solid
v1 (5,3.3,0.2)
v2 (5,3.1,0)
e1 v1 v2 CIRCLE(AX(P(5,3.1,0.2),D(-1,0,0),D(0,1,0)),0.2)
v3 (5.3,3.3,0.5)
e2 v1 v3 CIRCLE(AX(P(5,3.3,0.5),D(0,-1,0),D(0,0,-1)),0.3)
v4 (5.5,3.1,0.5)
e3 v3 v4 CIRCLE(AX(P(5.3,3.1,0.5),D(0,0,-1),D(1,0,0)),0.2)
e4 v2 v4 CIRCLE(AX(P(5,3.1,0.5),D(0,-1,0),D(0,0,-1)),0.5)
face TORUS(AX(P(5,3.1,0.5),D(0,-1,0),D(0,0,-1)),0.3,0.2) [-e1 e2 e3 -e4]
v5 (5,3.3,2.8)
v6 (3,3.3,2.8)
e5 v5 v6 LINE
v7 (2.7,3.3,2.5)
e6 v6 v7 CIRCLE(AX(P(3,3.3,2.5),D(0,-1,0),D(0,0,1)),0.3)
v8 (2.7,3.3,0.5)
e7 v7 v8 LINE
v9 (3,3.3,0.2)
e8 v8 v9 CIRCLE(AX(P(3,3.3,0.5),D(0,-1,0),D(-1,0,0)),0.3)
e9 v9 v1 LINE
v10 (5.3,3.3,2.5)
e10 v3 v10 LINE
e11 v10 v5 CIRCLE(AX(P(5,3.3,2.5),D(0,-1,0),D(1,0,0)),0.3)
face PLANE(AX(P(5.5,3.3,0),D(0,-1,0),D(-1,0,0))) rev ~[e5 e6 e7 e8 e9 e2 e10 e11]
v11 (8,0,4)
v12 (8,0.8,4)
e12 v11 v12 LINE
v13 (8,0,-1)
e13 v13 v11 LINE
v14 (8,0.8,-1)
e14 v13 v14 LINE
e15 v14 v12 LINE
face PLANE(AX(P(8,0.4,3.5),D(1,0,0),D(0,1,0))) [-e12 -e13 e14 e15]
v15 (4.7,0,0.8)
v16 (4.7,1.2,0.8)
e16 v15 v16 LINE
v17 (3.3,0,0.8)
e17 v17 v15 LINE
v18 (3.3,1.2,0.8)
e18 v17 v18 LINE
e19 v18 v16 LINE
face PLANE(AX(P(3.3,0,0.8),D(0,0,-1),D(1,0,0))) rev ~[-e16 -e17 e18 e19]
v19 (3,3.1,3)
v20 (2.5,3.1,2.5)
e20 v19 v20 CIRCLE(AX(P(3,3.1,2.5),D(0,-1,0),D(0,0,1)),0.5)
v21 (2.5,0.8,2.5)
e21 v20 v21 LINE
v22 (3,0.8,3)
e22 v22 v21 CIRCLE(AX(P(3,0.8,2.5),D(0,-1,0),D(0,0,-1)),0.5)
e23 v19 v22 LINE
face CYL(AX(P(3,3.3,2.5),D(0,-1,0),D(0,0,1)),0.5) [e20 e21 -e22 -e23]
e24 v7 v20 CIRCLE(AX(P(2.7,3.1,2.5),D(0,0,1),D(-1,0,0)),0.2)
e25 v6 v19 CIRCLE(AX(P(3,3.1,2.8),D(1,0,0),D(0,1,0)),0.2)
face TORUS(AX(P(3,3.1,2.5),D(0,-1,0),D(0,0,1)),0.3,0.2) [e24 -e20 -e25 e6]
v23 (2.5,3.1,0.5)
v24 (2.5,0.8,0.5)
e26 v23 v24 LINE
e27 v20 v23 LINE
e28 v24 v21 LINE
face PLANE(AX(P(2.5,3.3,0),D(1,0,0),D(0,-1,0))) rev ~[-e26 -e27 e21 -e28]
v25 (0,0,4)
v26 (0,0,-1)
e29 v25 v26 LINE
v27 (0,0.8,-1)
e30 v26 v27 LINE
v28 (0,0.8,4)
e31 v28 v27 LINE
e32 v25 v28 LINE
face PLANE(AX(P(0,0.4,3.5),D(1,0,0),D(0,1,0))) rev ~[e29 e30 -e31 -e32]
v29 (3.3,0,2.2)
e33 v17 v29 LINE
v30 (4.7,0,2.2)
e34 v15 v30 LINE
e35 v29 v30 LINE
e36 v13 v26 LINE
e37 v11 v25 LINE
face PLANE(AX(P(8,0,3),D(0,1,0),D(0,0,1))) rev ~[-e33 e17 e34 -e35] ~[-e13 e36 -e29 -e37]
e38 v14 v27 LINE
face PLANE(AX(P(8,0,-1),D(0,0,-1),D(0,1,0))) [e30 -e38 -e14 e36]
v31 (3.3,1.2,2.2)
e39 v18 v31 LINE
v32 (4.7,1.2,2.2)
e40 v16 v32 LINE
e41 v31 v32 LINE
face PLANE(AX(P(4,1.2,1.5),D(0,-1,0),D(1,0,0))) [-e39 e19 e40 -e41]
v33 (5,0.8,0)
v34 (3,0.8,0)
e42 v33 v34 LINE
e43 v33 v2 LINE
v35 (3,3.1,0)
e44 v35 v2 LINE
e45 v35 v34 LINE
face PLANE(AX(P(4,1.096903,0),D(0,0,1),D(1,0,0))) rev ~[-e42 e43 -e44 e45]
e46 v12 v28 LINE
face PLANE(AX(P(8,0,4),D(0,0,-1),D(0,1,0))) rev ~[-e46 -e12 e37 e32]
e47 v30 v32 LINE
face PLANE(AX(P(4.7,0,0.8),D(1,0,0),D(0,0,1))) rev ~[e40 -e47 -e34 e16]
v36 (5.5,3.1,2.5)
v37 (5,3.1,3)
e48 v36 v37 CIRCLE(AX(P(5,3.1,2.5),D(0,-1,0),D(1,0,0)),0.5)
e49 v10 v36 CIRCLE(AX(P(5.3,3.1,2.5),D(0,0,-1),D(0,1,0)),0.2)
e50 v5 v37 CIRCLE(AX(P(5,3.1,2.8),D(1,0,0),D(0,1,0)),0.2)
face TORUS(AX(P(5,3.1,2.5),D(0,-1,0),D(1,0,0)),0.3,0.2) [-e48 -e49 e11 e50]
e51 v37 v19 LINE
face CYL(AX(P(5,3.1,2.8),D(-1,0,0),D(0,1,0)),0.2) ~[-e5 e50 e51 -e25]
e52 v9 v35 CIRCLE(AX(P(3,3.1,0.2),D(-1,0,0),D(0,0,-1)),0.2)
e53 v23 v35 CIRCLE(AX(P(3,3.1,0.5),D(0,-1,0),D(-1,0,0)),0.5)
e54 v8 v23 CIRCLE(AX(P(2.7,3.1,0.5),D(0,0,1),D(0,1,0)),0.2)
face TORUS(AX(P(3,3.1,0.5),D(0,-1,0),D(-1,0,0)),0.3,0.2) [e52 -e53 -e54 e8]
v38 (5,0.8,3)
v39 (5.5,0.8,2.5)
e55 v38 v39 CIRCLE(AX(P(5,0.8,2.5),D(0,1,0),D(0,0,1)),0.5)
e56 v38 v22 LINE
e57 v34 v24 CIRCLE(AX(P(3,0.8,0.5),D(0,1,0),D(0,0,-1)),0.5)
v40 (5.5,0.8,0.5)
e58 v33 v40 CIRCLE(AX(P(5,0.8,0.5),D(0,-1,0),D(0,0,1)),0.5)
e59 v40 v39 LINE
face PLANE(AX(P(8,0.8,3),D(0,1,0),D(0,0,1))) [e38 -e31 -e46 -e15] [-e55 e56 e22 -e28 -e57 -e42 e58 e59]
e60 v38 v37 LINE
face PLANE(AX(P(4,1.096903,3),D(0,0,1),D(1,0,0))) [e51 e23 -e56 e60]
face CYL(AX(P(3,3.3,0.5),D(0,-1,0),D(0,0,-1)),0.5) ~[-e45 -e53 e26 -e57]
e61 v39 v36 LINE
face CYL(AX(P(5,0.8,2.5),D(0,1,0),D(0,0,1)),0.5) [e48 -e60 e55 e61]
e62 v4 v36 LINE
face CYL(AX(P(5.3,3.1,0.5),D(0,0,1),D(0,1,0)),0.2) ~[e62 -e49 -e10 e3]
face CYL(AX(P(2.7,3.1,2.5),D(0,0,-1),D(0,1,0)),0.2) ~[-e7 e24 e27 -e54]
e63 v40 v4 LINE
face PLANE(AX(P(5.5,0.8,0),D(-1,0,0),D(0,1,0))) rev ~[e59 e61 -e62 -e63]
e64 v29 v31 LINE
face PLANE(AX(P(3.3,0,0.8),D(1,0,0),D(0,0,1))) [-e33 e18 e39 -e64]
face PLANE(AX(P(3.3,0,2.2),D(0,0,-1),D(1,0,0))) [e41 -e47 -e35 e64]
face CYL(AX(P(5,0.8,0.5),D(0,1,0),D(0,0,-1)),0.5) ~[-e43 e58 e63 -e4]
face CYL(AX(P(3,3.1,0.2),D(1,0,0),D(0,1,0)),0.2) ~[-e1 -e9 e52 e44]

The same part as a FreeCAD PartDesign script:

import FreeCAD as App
import Part
import Sketcher

V = App.Vector
Q = App.Units.Quantity


def edges_at(feature, points):
    """Names of the edges that pass closest to the given points."""
    edges = feature.Shape.Edges
    near = lambda p: min(range(len(edges)), key=lambda i: edges[i].distToShape(Part.Vertex(*p))[0])
    return sorted({f"Edge{near(p) + 1}" for p in points})

doc = App.newDocument("Part")
params = doc.addObject("Spreadsheet::Sheet", "Params")
for row, (alias, value) in enumerate([
    ("sketch1_width", "8 mm"),
    ("sketch1_width2", "3 mm"),
    ("sketch1_height", "0.8 mm"),
    ("pad1_length", "3 mm"),
    ("sketch2_width", "1.4 mm"),
    ("pocket1_length", "1.2 mm"),
    ("fillet_radius", "0.5 mm"),
    ("fillet2_radius", "0.2 mm"),
    ("sketch3_height", "1 mm"),
    ("sketch3_width", "0.8 mm"),
], start=1):
    params.set(f"A{row}", alias)
    params.set(f"B{row}", "=" + value)
    params.setAlias(f"B{row}", alias)

body = doc.addObject("PartDesign::Body", "Body")

sketch1 = body.newObject("Sketcher::SketchObject", "Sketch")
sketch1.AttachmentSupport = (doc.getObject("XY_Plane"), [""])
sketch1.MapMode = "FlatFace"
sketch1.addGeometry([
    Part.LineSegment(V(0, 0.8, 0), V(0, 0, 0)),
    Part.LineSegment(V(0, 0, 0), V(8, 0, 0)),
    Part.LineSegment(V(8, 0, 0), V(8, 0.8, 0)),
    Part.LineSegment(V(8, 0.8, 0), V(5.5, 0.8, 0)),
    Part.LineSegment(V(5.5, 0.8, 0), V(5.5, 3.3, 0)),
    Part.LineSegment(V(5.5, 3.3, 0), V(2.5, 3.3, 0)),
    Part.LineSegment(V(2.5, 3.3, 0), V(2.5, 0.8, 0)),
    Part.LineSegment(V(2.5, 0.8, 0), V(0, 0.8, 0)),
], False)
sketch1.addConstraint([
    Sketcher.Constraint("Coincident", 0, 2, 1, 1),
    Sketcher.Constraint("Coincident", 1, 2, 2, 1),
    Sketcher.Constraint("Coincident", 2, 2, 3, 1),
    Sketcher.Constraint("Coincident", 3, 2, 4, 1),
    Sketcher.Constraint("Coincident", 4, 2, 5, 1),
    Sketcher.Constraint("Coincident", 5, 2, 6, 1),
    Sketcher.Constraint("Coincident", 6, 2, 7, 1),
    Sketcher.Constraint("Coincident", 7, 2, 0, 1),
    Sketcher.Constraint("Vertical", 0),
    Sketcher.Constraint("Horizontal", 1),
    Sketcher.Constraint("Vertical", 2),
    Sketcher.Constraint("Horizontal", 3),
    Sketcher.Constraint("Vertical", 4),
    Sketcher.Constraint("Horizontal", 5),
    Sketcher.Constraint("Vertical", 6),
    Sketcher.Constraint("Horizontal", 7),
    Sketcher.Constraint("Coincident", 0, 2, -1, 1),
    Sketcher.Constraint("Horizontal", 3, 2, 6, 2),
    Sketcher.Constraint("Equal", 3, 7),
    Sketcher.Constraint("Equal", 7, 4),
    Sketcher.Constraint("DistanceX", 1, 1, 1, 2, Q("8 mm")),
    Sketcher.Constraint("DistanceX", 5, 2, 5, 1, Q("3 mm")),
    Sketcher.Constraint("DistanceY", 0, 2, 0, 1, Q("0.8 mm")),
])
sketch1.setExpression("Constraints[20]", "Params.sketch1_width")
sketch1.setExpression("Constraints[21]", "Params.sketch1_width2")
sketch1.setExpression("Constraints[22]", "Params.sketch1_height")
pad1 = body.newObject("PartDesign::Pad", "Pad")
pad1.Profile = sketch1
pad1.setExpression("Length", "Params.pad1_length")

sketch2 = body.newObject("Sketcher::SketchObject", "Sketch001")
sketch2.AttachmentSupport = (doc.getObject("XZ_Plane"), [""])
sketch2.MapMode = "FlatFace"
sketch2.addGeometry([
    Part.LineSegment(V(3.3, 2.2, 0), V(3.3, 0.8, 0)),
    Part.LineSegment(V(3.3, 0.8, 0), V(4.7, 0.8, 0)),
    Part.LineSegment(V(4.7, 0.8, 0), V(4.7, 2.2, 0)),
    Part.LineSegment(V(4.7, 2.2, 0), V(3.3, 2.2, 0)),
], False)
sketch2.addConstraint([
    Sketcher.Constraint("Coincident", 0, 2, 1, 1),
    Sketcher.Constraint("Coincident", 1, 2, 2, 1),
    Sketcher.Constraint("Coincident", 2, 2, 3, 1),
    Sketcher.Constraint("Coincident", 3, 2, 0, 1),
    Sketcher.Constraint("Vertical", 0),
    Sketcher.Constraint("Horizontal", 1),
    Sketcher.Constraint("Vertical", 2),
    Sketcher.Constraint("Horizontal", 3),
    Sketcher.Constraint("Equal", 3, 0),
    Sketcher.Constraint("DistanceX", 1, 1, 1, 2, Q("1.4 mm")),
    Sketcher.Constraint("DistanceX", -1, 1, 0, 2, Q("3.3 mm")),
    Sketcher.Constraint("DistanceY", -1, 1, 0, 2, Q("0.8 mm")),
])
sketch2.setExpression("Constraints[9]", "Params.sketch2_width")
pocket1 = body.newObject("PartDesign::Pocket", "Pocket")
pocket1.Profile = sketch2
pocket1.setExpression("Length", "Params.pocket1_length")
doc.recompute()

fillet = body.newObject("PartDesign::Fillet", "Fillet")
fillet.Base = (pocket1, edges_at(pocket1, [
    (5.5, 2.05, 3),
    (2.5, 2.05, 3),
    (2.5, 2.05, 0),
    (5.5, 2.05, 0),
]))
fillet.setExpression("Radius", "Params.fillet_radius")
doc.recompute()

fillet2 = body.newObject("PartDesign::Fillet", "Fillet001")
fillet2.Base = (fillet, edges_at(fillet, [
    (4, 3.3, 3),
    (5.354, 3.3, 2.854),
    (5.5, 3.3, 1.5),
    (5.354, 3.3, 0.146),
    (4, 3.3, 0),
    (2.646, 3.3, 0.146),
    (2.5, 3.3, 1.5),
    (2.646, 3.3, 2.854),
]))
fillet2.setExpression("Radius", "Params.fillet2_radius")

sketch3 = body.newObject("Sketcher::SketchObject", "Sketch002")
sketch3.AttachmentSupport = (doc.getObject("YZ_Plane"), [""])
sketch3.MapMode = "FlatFace"
sketch3.AttachmentOffset = App.Placement(V(0, 0, 8), App.Rotation())
sketch3.addGeometry([
    Part.LineSegment(V(0, 4, 0), V(0, 3, 0)),
    Part.LineSegment(V(0, 3, 0), V(0.8, 3, 0)),
    Part.LineSegment(V(0.8, 3, 0), V(0.8, 4, 0)),
    Part.LineSegment(V(0.8, 4, 0), V(0, 4, 0)),
    Part.LineSegment(V(0, 0, 0), V(0, -1, 0)),
    Part.LineSegment(V(0, -1, 0), V(0.8, -1, 0)),
    Part.LineSegment(V(0.8, -1, 0), V(0.8, 0, 0)),
    Part.LineSegment(V(0.8, 0, 0), V(0, 0, 0)),
], False)
sketch3.addConstraint([
    Sketcher.Constraint("Coincident", 0, 2, 1, 1),
    Sketcher.Constraint("Coincident", 1, 2, 2, 1),
    Sketcher.Constraint("Coincident", 2, 2, 3, 1),
    Sketcher.Constraint("Coincident", 3, 2, 0, 1),
    Sketcher.Constraint("Coincident", 4, 2, 5, 1),
    Sketcher.Constraint("Coincident", 5, 2, 6, 1),
    Sketcher.Constraint("Coincident", 6, 2, 7, 1),
    Sketcher.Constraint("Coincident", 7, 2, 4, 1),
    Sketcher.Constraint("Vertical", 0),
    Sketcher.Constraint("Horizontal", 1),
    Sketcher.Constraint("Vertical", 2),
    Sketcher.Constraint("Horizontal", 3),
    Sketcher.Constraint("Vertical", 4),
    Sketcher.Constraint("Horizontal", 5),
    Sketcher.Constraint("Vertical", 6),
    Sketcher.Constraint("Horizontal", 7),
    Sketcher.Constraint("Coincident", 7, 2, -1, 1),
    Sketcher.Constraint("PointOnObject", 0, 2, -2),
    Sketcher.Constraint("Vertical", 2, 2, 5, 2),
    Sketcher.Constraint("Equal", 2, 4),
    Sketcher.Constraint("DistanceY", 0, 2, 0, 1, Q("1 mm")),
    Sketcher.Constraint("DistanceX", 1, 1, 1, 2, Q("0.8 mm")),
    Sketcher.Constraint("DistanceY", -1, 1, 0, 2, Q("3 mm")),
])
sketch3.setExpression("Constraints[20]", "Params.sketch3_height")
sketch3.setExpression("Constraints[21]", "Params.sketch3_width")
pad2 = body.newObject("PartDesign::Pad", "Pad001")
pad2.Profile = sketch3
pad2.Type = "UpToLast"
pad2.Reversed = True

doc.recompute()
